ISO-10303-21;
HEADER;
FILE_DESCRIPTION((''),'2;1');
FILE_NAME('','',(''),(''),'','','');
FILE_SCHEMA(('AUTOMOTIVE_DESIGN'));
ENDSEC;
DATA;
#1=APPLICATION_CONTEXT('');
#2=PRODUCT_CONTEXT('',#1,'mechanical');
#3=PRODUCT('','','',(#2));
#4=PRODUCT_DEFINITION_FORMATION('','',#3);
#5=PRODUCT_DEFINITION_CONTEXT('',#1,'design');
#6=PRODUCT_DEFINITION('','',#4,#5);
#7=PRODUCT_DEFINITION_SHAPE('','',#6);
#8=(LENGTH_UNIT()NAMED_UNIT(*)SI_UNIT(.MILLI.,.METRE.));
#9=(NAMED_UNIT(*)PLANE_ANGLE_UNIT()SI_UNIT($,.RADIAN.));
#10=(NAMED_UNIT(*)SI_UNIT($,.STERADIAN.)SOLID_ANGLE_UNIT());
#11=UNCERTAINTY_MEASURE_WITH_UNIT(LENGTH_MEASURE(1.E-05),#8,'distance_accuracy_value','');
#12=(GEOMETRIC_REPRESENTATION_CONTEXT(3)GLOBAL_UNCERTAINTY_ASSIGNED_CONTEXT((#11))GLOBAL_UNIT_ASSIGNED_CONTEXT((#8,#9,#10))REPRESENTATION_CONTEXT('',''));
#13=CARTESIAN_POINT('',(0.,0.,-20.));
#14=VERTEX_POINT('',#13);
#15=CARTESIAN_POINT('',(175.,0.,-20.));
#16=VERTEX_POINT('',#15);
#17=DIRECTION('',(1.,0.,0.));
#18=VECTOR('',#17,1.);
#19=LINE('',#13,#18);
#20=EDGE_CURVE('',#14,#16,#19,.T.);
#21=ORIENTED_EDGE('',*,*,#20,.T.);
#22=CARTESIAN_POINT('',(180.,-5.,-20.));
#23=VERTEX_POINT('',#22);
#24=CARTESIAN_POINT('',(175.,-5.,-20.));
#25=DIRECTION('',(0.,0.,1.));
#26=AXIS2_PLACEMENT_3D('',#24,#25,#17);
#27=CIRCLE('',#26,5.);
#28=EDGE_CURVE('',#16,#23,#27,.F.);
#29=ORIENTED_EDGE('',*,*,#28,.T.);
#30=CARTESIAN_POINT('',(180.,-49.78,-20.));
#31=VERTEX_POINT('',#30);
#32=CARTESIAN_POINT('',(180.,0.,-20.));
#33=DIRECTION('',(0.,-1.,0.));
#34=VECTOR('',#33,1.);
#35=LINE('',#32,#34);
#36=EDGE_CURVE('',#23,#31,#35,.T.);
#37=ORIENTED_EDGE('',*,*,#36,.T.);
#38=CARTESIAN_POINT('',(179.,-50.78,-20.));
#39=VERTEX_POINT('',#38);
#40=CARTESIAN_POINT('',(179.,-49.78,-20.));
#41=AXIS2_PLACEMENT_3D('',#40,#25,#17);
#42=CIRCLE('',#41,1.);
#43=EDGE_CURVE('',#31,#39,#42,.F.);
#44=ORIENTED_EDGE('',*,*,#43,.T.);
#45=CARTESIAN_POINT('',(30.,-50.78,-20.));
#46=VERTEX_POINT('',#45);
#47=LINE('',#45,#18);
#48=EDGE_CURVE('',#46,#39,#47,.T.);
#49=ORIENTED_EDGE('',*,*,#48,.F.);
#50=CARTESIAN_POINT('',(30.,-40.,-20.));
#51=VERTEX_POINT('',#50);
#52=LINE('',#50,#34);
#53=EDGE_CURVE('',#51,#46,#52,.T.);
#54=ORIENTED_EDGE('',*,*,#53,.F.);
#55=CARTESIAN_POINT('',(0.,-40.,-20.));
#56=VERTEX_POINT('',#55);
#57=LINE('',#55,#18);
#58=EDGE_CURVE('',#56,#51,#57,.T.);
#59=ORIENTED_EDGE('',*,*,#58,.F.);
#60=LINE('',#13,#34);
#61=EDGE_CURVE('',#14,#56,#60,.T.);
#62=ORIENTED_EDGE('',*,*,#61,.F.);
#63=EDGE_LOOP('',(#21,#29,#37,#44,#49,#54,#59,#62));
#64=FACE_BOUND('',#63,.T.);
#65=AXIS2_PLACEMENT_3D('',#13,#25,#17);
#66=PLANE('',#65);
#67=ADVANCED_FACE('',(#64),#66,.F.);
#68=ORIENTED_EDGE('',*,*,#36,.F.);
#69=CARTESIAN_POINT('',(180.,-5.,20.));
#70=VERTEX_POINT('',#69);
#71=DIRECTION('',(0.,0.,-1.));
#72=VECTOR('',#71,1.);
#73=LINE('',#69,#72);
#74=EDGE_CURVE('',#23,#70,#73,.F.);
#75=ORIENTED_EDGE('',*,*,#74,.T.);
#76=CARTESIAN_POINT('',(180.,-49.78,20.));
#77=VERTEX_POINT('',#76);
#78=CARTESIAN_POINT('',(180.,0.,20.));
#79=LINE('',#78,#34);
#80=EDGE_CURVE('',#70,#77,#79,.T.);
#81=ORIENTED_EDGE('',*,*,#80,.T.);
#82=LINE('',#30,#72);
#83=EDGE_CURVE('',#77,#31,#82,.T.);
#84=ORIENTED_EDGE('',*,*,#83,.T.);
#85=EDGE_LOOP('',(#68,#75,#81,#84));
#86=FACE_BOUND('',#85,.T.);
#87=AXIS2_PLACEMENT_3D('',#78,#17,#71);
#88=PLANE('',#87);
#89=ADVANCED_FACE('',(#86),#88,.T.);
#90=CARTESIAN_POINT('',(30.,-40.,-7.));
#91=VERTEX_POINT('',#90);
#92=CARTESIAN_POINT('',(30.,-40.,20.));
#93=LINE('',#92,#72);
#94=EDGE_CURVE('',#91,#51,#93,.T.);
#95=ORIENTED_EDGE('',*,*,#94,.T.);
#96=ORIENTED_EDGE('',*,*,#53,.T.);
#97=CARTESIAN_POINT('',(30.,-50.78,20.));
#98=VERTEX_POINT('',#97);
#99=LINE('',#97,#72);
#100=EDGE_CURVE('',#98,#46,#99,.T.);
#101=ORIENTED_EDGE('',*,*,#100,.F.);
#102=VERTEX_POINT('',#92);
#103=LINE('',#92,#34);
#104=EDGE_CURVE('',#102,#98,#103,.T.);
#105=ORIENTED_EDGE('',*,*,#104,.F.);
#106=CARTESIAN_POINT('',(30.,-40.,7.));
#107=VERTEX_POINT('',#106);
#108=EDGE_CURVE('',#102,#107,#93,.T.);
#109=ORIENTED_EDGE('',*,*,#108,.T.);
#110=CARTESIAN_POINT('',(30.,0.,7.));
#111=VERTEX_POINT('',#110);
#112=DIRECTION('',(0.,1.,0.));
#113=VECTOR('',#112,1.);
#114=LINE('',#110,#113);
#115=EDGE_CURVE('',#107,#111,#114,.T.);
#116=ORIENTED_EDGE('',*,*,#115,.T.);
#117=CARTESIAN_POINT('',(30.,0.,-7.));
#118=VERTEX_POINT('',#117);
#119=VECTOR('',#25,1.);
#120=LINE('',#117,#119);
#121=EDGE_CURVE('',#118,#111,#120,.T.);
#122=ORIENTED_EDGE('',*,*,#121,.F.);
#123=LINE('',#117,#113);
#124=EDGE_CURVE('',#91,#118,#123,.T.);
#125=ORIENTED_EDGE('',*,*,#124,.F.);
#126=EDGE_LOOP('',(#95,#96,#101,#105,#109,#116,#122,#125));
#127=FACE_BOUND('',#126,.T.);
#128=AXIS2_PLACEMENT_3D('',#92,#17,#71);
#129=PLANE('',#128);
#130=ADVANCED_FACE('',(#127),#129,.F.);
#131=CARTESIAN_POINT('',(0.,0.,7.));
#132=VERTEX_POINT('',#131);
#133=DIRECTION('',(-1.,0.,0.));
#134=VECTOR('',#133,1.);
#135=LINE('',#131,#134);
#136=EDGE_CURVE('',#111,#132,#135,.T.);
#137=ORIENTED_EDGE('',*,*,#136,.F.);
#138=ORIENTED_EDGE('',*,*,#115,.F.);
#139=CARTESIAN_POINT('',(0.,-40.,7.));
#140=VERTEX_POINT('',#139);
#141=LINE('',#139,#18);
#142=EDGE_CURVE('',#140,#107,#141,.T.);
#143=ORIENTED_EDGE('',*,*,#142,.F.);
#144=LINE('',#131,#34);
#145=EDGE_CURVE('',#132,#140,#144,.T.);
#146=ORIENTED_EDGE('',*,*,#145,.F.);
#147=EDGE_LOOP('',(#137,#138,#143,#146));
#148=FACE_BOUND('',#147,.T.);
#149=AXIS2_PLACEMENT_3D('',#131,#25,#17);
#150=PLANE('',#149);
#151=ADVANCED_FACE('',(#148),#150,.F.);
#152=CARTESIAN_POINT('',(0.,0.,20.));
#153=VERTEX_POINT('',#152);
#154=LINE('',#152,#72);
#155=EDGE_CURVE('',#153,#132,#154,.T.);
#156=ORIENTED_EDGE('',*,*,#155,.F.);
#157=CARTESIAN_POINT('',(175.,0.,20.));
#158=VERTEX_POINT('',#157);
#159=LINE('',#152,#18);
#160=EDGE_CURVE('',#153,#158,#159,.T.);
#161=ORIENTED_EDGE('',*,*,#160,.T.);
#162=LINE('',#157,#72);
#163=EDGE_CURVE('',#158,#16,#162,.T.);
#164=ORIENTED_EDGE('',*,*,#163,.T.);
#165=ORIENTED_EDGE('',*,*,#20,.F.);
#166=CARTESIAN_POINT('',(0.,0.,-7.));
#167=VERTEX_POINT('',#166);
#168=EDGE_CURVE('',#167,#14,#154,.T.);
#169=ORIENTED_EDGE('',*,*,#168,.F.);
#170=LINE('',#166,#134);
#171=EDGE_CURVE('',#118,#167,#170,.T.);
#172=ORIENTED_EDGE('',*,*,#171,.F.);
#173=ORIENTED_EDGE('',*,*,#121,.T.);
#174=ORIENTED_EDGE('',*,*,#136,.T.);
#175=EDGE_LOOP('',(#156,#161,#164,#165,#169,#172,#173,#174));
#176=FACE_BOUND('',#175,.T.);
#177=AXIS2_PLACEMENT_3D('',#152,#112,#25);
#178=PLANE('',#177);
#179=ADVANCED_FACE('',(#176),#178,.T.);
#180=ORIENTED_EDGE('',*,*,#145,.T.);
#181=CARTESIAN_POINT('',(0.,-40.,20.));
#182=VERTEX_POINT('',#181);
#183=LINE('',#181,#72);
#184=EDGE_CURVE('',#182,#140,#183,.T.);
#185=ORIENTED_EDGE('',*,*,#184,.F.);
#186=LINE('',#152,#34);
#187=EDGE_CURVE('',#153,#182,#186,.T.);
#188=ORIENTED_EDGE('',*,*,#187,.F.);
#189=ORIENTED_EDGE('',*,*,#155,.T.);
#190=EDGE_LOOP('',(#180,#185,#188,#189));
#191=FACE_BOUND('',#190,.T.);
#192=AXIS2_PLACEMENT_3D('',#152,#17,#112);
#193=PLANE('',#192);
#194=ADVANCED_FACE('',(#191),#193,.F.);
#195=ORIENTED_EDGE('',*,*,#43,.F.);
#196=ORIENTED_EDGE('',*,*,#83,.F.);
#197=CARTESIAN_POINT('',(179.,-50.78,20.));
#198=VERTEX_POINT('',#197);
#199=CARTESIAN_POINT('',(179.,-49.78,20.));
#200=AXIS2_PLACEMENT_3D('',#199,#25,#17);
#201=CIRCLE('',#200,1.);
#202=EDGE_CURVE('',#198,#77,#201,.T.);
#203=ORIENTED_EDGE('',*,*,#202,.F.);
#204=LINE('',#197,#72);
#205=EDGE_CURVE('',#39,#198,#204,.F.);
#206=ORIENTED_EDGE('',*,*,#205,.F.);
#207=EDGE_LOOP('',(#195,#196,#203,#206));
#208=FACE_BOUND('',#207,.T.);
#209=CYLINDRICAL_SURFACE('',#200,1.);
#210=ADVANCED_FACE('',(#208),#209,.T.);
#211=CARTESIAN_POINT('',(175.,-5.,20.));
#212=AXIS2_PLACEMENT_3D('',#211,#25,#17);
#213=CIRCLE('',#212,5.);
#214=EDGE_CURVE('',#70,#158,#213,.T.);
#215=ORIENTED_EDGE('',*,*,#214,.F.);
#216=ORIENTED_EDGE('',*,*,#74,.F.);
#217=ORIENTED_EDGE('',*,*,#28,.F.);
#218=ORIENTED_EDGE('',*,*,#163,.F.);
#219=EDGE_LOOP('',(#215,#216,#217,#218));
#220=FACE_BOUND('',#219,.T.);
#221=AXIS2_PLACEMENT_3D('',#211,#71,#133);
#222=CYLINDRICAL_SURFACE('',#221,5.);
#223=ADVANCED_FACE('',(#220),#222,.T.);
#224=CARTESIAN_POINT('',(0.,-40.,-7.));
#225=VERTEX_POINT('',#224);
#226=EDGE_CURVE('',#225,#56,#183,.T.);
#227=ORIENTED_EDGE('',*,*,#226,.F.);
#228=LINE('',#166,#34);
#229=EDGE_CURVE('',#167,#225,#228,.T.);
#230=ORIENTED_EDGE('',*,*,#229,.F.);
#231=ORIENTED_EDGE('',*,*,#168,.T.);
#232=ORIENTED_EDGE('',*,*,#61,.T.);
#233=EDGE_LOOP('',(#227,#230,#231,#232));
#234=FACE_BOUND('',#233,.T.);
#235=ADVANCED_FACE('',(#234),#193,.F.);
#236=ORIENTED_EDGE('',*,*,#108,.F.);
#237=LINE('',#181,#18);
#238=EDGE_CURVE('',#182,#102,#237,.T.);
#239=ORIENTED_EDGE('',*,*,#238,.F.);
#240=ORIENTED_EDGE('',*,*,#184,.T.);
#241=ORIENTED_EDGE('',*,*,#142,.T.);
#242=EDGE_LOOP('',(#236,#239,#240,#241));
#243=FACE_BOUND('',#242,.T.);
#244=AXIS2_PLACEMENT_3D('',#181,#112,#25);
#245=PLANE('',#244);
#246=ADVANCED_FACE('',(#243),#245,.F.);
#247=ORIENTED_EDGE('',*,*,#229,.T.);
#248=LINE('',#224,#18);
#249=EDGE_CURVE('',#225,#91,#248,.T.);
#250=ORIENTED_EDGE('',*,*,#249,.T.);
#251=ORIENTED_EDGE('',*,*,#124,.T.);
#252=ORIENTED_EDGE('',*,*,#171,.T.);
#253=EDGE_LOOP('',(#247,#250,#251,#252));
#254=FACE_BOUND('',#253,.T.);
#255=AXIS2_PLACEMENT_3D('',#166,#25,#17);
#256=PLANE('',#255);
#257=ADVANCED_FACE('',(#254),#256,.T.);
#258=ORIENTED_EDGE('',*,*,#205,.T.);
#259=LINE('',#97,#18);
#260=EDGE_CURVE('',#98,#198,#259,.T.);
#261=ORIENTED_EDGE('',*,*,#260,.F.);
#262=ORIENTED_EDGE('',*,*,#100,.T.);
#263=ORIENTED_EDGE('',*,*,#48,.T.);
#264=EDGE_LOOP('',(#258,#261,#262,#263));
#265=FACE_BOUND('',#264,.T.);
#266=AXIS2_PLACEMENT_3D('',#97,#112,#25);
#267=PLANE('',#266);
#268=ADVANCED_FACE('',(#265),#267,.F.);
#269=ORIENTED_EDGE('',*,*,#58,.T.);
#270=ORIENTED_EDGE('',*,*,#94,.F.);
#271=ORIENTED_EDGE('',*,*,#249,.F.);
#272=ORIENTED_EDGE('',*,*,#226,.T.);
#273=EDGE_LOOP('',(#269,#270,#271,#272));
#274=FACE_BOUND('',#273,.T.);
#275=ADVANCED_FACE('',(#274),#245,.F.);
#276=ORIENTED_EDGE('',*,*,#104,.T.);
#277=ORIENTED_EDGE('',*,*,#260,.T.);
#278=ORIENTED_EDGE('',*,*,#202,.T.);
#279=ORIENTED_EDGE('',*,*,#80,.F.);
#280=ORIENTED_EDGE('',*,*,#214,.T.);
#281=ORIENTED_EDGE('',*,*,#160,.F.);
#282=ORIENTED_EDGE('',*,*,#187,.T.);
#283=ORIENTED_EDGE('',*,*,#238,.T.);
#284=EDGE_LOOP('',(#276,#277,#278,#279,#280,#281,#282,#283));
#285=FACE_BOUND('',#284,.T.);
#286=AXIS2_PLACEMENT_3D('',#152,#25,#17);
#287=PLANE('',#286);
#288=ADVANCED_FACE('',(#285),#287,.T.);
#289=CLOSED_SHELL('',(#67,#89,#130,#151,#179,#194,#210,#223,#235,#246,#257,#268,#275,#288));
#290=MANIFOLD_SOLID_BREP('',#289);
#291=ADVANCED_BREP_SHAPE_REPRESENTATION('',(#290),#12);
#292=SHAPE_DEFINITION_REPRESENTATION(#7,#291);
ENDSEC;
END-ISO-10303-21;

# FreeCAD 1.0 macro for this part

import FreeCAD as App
import Part
import Sketcher
from FreeCAD import Vector
Q = App.Units.Quantity


def edges_at(feature, points):
    """Names of the edges that pass closest to the given points."""
    edges = feature.Shape.Edges
    near = lambda p: min(range(len(edges)), key=lambda i: edges[i].distToShape(Part.Vertex(*p))[0])
    return sorted({f"Edge{near(p) + 1}" for p in points})


def add_polygon(sketch, points):
    """Adds a closed chain of lines whose ends are joined by coincident constraints."""
    first, n = sketch.GeometryCount, len(points)
    for a, b in zip(points, points[1:] + points[:1]):
        sketch.addGeometry(Part.LineSegment(App.Vector(*a, 0), App.Vector(*b, 0)), False)
    for i in range(n):
        sketch.addConstraint(Sketcher.Constraint("Coincident", first + i, 2, first + (i + 1) % n, 1))

doc = App.newDocument("Part")
body = doc.addObject("PartDesign::Body", "Body")

# Sketch on XY plane
sketch1 = body.newObject("Sketcher::SketchObject", "Sketch")
sketch1.AttachmentSupport = (doc.getObject("XY_Plane"), [""])
sketch1.MapMode = "FlatFace"
add_polygon(sketch1, [(0, -40), (30, -40), (30, -51), (180, -51), (180, 0), (0, 0)])  # lines 0-5
sketch1.addConstraint([
    Sketcher.Constraint("Horizontal", 0),
    Sketcher.Constraint("Vertical", 1),
    Sketcher.Constraint("Horizontal", 2),
    Sketcher.Constraint("Vertical", 3),
    Sketcher.Constraint("Horizontal", 4),
    Sketcher.Constraint("Vertical", 5),
    Sketcher.Constraint("Coincident", 4, 2, -1, 1),
    Sketcher.Constraint("DistanceX", 0, 1, 0, 2, Q("30 mm")),
    Sketcher.Constraint("DistanceX", 2, 1, 2, 2, Q("150 mm")),
    Sketcher.Constraint("DistanceY", 5, 2, 5, 1, Q("40 mm")),
    Sketcher.Constraint("DistanceY", 1, 2, 1, 1, Q("10.78 mm")),
])
pad1 = body.newObject("PartDesign::Pad", "Pad")
pad1.Profile = sketch1
pad1.Length = 40
pad1.Midplane = True

# Sketch on XY plane
sketch2 = body.newObject("Sketcher::SketchObject", "Sketch001")
sketch2.AttachmentSupport = (doc.getObject("XY_Plane"), [""])
sketch2.MapMode = "FlatFace"
add_polygon(sketch2, [(0, 0), (0, -40), (30, -40), (30, 0)])  # lines 0-3
sketch2.addConstraint([
    Sketcher.Constraint("Vertical", 0),
    Sketcher.Constraint("Horizontal", 1),
    Sketcher.Constraint("Vertical", 2),
    Sketcher.Constraint("Horizontal", 3),
    Sketcher.Constraint("Coincident", 3, 2, -1, 1),
    Sketcher.Constraint("DistanceX", 1, 1, 1, 2, Q("30 mm")),
    Sketcher.Constraint("DistanceY", 0, 2, 0, 1, Q("40 mm")),
])
pocket1 = body.newObject("PartDesign::Pocket", "Pocket")
pocket1.Profile = sketch2
pocket1.Length = 14
pocket1.Midplane = True
doc.recompute()

fillet = body.newObject("PartDesign::Fillet", "Fillet")
fillet.Base = (pocket1, edges_at(pocket1, [(180, 0, 0)]))
fillet.Radius = 5
doc.recompute()

fillet2 = body.newObject("PartDesign::Fillet", "Fillet001")
fillet2.Base = (fillet, edges_at(fillet, [(180, -50.78, 0)]))
fillet2.Radius = 1

doc.recompute()
